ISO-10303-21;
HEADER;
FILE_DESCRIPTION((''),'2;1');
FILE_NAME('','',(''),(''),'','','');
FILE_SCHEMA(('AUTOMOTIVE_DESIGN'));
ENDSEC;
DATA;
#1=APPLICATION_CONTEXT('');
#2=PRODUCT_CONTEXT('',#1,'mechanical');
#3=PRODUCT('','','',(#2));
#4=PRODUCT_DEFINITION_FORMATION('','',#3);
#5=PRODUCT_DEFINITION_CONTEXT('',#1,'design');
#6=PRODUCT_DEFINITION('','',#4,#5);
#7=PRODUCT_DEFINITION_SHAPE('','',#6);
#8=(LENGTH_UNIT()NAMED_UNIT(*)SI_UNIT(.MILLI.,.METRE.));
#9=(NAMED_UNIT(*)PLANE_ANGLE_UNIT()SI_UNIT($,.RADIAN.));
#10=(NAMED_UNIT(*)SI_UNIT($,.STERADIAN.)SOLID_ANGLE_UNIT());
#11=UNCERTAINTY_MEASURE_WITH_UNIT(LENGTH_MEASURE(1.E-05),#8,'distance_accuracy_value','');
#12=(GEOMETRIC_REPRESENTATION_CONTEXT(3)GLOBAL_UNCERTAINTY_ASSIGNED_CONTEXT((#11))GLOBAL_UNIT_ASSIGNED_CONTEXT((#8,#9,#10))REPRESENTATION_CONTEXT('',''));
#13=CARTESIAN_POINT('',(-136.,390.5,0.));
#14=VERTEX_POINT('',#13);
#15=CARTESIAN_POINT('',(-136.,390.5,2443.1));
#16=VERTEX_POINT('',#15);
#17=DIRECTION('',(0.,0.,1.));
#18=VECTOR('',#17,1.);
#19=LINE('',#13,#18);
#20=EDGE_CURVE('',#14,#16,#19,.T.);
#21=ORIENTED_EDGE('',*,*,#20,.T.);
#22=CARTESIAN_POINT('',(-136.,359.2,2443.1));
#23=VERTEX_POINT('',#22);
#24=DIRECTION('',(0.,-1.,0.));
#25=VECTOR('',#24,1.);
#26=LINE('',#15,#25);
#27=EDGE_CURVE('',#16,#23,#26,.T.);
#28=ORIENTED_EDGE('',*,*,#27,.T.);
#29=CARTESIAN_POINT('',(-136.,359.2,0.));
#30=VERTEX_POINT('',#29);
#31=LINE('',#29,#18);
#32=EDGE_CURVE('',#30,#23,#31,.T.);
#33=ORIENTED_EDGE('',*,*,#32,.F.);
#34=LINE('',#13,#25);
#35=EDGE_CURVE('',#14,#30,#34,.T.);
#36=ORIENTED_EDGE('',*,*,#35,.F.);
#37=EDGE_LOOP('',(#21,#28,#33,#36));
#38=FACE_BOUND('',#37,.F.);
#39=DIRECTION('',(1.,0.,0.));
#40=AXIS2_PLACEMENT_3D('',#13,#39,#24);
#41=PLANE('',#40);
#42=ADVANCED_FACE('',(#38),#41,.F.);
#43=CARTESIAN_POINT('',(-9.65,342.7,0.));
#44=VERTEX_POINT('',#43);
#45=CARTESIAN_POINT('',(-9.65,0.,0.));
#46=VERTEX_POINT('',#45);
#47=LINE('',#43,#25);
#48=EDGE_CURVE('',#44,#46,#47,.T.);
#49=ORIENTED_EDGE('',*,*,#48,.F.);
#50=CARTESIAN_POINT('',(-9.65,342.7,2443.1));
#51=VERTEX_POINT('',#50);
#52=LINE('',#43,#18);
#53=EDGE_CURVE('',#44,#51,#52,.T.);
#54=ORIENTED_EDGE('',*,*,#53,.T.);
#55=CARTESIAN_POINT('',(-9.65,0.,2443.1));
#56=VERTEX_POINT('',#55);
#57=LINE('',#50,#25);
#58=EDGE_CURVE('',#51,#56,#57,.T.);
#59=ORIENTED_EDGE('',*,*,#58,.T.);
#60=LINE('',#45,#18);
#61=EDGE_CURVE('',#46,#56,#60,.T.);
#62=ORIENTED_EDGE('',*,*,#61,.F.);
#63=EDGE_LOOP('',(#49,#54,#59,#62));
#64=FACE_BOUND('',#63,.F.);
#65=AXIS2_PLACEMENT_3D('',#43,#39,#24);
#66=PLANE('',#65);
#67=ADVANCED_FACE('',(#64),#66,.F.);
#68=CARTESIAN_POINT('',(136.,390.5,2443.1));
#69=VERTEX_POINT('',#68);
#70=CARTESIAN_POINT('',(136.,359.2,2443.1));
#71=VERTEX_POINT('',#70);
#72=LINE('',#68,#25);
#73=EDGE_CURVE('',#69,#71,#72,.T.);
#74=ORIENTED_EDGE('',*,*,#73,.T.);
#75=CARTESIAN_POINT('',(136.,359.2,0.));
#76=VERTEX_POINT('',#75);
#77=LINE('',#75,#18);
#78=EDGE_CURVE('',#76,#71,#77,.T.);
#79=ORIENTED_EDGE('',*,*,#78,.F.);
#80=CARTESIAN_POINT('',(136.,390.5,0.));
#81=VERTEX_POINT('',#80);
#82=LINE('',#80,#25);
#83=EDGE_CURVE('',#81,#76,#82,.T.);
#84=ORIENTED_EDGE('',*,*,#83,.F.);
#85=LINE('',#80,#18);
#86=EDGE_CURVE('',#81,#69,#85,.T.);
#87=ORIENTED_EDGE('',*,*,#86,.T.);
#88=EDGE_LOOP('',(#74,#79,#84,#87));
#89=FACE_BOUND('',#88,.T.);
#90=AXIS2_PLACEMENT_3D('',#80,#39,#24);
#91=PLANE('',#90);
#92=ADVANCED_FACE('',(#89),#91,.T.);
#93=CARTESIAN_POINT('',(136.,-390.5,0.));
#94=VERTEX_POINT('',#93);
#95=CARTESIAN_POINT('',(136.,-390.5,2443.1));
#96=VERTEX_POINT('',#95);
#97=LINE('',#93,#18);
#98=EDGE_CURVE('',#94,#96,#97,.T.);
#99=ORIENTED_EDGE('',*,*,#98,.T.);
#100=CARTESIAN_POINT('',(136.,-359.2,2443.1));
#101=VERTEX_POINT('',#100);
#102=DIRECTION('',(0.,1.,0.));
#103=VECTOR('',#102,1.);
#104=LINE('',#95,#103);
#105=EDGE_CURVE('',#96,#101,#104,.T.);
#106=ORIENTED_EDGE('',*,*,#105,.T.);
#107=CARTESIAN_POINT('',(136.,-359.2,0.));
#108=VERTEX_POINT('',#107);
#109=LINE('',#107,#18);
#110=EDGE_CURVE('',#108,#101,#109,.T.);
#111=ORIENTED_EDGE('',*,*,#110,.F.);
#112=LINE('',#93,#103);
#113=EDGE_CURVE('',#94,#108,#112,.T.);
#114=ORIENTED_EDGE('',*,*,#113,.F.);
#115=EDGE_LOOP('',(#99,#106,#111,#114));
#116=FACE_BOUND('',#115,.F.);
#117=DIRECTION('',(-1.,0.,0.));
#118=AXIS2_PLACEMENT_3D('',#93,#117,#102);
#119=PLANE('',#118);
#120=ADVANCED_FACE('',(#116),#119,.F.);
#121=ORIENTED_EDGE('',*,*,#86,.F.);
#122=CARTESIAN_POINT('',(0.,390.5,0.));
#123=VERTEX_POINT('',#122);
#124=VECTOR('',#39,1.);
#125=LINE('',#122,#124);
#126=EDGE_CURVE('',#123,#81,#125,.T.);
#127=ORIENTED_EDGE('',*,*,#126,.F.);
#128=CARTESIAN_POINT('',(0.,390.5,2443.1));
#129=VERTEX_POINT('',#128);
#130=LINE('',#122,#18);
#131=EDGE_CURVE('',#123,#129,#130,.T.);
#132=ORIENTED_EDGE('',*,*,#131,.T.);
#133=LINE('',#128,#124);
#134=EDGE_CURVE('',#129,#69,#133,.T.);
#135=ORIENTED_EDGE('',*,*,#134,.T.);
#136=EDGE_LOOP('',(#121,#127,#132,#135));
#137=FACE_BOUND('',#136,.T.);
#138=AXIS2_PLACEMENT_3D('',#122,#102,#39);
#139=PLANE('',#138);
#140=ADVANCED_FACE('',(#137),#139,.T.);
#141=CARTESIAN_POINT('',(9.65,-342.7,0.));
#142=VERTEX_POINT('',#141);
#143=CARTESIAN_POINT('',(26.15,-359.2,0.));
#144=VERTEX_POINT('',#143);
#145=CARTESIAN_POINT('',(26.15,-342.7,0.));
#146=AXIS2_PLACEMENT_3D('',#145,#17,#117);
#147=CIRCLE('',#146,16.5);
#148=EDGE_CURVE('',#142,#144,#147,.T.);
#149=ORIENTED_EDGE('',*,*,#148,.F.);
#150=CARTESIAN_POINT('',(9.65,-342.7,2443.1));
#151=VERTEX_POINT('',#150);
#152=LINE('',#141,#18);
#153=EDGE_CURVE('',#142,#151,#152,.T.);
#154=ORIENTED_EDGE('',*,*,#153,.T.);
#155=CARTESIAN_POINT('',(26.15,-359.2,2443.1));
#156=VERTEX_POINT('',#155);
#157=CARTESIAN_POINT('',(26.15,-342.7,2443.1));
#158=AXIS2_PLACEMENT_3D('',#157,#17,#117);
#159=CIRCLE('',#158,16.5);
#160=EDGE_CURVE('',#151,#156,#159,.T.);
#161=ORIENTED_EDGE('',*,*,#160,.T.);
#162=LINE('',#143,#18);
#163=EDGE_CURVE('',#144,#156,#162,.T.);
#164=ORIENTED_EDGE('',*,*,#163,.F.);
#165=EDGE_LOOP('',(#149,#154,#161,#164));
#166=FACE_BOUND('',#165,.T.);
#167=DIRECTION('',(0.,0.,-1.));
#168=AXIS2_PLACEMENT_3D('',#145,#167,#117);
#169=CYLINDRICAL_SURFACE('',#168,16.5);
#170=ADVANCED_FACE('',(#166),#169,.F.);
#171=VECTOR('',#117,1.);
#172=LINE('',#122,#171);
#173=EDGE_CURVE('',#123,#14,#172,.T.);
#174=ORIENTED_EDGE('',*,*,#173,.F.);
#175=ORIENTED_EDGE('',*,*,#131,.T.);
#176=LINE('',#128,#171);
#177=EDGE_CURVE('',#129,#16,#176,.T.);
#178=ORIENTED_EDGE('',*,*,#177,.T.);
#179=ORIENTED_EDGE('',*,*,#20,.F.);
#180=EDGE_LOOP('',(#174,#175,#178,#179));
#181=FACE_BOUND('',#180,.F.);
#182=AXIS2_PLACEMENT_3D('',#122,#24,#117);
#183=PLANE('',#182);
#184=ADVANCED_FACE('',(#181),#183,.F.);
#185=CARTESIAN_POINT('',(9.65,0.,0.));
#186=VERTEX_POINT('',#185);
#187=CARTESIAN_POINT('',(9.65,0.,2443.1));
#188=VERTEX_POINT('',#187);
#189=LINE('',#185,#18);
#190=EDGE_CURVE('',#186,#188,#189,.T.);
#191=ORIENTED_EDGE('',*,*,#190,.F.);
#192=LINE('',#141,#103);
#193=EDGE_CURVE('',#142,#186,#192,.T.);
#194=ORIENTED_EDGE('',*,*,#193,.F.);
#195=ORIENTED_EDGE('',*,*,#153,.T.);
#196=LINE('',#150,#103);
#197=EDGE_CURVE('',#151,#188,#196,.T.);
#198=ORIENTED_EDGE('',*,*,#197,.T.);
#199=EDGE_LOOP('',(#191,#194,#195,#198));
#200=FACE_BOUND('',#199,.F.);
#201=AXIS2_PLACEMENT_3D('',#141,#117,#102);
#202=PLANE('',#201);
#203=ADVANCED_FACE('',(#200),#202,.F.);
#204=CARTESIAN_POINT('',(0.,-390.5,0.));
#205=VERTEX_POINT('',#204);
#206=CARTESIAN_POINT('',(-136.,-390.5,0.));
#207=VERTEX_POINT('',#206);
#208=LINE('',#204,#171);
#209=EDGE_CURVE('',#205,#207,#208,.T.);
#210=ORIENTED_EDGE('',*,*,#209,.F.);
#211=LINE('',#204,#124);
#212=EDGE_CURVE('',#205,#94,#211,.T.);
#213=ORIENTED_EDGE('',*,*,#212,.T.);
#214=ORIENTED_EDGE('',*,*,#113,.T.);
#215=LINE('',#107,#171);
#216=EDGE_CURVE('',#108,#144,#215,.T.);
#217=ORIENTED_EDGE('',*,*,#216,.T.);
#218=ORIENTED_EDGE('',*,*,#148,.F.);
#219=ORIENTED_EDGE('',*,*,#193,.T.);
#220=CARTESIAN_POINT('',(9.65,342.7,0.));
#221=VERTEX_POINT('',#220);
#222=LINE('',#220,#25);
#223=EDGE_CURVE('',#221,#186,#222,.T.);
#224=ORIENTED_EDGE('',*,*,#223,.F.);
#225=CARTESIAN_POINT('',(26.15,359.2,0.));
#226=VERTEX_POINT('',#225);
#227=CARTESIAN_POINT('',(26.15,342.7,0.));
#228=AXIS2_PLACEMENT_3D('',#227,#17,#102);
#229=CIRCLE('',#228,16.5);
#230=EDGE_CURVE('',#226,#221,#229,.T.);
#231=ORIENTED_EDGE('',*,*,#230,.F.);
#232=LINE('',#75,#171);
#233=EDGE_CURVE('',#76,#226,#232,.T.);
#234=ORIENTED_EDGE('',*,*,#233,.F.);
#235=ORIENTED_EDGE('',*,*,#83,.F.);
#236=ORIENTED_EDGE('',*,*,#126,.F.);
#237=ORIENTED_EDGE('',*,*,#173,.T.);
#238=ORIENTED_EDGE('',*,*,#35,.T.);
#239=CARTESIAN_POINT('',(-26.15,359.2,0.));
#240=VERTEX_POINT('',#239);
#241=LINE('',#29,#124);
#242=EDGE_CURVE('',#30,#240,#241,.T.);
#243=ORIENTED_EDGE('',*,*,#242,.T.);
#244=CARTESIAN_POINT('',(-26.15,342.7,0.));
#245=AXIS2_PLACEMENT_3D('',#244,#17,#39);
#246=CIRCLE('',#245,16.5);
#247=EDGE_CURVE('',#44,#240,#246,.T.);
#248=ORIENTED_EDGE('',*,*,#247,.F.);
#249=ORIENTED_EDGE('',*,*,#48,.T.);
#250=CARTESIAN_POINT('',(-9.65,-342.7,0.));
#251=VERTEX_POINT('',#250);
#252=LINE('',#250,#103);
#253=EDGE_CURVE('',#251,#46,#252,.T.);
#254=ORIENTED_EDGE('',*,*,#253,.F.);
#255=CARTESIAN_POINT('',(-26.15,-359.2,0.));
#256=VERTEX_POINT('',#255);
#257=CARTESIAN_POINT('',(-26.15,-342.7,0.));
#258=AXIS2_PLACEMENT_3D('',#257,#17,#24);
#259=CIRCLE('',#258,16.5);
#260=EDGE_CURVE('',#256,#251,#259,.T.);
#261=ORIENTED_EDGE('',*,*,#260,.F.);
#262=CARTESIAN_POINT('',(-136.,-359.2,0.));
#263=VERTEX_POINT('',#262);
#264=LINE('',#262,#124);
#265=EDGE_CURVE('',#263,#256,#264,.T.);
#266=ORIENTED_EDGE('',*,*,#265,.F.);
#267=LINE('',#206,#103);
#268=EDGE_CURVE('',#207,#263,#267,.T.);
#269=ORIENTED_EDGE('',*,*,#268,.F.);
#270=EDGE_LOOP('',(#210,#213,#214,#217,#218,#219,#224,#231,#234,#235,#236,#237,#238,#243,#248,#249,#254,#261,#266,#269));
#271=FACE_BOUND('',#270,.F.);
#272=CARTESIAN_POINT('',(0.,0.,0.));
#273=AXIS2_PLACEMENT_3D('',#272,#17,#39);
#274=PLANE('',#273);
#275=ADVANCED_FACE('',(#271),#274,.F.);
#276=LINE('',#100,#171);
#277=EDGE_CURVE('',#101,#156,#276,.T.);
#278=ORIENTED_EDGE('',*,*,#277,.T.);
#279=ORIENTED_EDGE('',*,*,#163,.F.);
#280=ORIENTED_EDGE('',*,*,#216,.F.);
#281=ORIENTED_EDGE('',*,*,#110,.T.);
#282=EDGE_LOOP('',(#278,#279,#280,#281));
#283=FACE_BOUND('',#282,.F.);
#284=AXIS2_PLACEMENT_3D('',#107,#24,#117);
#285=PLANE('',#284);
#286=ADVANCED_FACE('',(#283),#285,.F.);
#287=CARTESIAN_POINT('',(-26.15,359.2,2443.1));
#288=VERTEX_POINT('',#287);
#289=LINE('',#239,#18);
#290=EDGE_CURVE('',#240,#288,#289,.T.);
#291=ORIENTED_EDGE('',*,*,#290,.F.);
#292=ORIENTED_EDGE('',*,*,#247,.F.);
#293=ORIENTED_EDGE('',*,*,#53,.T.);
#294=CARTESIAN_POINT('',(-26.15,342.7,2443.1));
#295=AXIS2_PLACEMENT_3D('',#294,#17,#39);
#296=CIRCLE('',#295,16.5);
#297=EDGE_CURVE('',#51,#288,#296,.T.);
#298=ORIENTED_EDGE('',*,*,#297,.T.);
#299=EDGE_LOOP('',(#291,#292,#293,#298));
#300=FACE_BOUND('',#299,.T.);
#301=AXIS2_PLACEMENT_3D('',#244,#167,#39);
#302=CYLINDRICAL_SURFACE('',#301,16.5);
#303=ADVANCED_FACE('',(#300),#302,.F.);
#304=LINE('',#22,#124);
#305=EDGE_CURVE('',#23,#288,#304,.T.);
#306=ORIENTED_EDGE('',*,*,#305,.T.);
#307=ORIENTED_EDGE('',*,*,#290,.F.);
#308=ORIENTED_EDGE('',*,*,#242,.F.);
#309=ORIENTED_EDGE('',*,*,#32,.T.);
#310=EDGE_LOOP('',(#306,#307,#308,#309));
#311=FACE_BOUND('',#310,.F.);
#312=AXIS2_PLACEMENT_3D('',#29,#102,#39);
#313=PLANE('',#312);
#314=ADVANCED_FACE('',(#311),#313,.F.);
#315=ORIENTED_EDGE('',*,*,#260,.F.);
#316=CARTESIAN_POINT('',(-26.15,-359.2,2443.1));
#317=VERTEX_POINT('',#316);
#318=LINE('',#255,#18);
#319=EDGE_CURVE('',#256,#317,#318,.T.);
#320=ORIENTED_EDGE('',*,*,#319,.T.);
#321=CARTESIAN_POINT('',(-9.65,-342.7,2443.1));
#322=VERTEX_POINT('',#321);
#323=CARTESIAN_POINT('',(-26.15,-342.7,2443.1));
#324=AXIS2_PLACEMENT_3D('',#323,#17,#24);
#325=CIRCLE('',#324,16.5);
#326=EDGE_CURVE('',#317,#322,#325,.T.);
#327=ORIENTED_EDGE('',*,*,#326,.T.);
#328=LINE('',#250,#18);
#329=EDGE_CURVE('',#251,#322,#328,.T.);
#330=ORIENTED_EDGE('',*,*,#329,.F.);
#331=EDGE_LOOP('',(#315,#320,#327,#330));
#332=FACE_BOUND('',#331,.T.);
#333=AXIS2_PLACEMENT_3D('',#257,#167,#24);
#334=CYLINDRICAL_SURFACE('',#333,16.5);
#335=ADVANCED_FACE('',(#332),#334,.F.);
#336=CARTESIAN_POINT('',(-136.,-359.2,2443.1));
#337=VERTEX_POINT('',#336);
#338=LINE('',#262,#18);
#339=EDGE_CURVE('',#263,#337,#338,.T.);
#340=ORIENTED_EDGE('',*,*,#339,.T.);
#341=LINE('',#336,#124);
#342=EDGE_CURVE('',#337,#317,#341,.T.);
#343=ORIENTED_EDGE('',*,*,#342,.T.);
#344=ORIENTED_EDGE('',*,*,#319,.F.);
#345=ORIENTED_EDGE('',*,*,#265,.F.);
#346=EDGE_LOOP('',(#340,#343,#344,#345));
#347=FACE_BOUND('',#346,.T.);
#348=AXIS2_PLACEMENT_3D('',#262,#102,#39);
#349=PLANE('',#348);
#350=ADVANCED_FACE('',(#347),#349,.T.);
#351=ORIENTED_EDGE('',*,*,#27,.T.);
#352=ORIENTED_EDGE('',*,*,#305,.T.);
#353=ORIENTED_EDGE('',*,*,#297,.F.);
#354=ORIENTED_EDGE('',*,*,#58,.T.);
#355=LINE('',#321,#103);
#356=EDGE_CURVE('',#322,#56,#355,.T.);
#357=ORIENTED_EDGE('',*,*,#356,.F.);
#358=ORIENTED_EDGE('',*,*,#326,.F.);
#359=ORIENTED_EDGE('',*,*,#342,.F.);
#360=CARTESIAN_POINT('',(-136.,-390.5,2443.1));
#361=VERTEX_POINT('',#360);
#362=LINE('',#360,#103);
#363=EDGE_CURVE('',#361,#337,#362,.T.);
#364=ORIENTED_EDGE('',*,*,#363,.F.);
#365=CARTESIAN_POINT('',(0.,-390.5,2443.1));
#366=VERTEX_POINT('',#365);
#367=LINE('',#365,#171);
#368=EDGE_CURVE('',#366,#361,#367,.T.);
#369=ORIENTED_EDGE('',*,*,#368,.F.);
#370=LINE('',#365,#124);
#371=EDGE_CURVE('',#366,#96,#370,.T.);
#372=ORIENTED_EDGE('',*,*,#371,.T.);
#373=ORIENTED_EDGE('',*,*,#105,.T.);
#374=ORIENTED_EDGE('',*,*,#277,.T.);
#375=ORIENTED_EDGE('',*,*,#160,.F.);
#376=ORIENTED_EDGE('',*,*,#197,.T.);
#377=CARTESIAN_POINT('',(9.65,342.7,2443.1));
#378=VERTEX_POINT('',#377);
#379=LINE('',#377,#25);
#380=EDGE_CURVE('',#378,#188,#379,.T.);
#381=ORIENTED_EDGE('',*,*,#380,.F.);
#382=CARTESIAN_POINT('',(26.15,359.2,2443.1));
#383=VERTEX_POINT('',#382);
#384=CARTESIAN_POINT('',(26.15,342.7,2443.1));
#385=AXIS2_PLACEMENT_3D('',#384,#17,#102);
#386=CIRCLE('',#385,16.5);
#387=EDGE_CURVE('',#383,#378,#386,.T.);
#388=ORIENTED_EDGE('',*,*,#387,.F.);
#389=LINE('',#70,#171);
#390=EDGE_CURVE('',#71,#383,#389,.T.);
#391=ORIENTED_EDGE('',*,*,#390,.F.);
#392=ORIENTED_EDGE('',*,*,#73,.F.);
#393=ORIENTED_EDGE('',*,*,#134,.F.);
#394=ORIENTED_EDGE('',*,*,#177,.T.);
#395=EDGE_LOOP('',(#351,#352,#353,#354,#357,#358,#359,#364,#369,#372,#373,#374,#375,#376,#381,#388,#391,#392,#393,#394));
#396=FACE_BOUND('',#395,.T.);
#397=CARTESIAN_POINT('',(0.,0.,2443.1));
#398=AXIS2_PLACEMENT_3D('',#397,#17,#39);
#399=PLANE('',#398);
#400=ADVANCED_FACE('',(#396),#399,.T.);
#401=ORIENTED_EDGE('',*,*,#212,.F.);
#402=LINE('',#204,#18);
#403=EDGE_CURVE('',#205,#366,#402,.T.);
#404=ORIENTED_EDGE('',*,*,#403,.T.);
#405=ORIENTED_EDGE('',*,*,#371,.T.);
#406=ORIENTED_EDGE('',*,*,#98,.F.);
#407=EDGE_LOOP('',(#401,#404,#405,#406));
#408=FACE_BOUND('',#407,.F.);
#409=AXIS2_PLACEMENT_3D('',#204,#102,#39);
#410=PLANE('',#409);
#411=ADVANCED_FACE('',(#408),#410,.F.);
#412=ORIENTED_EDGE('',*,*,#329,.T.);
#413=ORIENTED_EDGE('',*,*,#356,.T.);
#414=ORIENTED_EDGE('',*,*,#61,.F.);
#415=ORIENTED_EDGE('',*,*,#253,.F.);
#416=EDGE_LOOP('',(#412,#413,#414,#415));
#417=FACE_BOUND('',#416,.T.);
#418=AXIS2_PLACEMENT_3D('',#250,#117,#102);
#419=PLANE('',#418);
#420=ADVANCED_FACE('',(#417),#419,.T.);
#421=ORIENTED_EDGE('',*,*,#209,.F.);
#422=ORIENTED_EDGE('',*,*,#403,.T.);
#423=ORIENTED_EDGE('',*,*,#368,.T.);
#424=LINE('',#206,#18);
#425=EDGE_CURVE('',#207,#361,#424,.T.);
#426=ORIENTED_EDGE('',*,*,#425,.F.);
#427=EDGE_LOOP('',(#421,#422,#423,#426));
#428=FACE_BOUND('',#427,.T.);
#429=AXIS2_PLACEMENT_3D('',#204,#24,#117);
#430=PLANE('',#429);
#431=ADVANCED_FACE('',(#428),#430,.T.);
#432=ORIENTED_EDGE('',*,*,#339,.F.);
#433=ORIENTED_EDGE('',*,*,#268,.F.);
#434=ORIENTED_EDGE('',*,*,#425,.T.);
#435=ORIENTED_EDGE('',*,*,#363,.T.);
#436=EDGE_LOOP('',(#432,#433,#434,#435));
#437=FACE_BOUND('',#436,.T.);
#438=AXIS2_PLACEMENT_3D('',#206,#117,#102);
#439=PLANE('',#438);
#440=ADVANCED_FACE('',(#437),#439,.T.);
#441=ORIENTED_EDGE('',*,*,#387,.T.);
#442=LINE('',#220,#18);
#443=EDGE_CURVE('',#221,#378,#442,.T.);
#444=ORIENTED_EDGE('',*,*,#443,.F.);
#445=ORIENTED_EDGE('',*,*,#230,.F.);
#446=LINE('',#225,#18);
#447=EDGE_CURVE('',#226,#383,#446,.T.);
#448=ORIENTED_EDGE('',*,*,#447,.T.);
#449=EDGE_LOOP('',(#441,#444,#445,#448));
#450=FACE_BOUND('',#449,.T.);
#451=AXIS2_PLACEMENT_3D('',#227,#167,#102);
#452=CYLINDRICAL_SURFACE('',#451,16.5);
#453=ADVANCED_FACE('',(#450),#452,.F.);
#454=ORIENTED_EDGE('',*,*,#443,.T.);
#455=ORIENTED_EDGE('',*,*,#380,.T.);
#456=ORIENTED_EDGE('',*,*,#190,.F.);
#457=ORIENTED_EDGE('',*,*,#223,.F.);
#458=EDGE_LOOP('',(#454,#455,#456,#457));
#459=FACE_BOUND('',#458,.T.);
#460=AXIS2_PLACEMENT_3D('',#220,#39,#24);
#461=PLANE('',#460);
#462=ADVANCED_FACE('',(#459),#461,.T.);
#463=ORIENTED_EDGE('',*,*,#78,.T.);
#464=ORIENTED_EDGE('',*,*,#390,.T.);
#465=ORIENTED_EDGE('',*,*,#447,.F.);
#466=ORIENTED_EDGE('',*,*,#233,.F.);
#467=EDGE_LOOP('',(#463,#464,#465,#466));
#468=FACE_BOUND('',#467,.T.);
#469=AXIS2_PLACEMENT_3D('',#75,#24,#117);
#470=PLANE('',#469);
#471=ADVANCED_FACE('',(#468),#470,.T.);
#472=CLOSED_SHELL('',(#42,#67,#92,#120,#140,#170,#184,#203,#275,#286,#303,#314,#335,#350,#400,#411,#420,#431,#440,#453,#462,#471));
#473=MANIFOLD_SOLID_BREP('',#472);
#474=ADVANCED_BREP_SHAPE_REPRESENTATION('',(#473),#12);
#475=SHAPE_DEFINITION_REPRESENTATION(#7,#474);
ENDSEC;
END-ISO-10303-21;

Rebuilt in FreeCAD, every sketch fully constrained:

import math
import FreeCAD as App
import Part
import Sketcher

V = App.Vector
Q = App.Units.Quantity

doc = App.newDocument("Part")
body = doc.addObject("PartDesign::Body", "Body")

# Sketch on XY plane
sketch1 = body.newObject("Sketcher::SketchObject", "Sketch")
sketch1.AttachmentSupport = (doc.getObject("XY_Plane"), [""])
sketch1.MapMode = "FlatFace"
sketch1.addGeometry(Part.LineSegment(V(-136, -359, 0), V(-136, -390, 0)), False)
sketch1.addGeometry(Part.LineSegment(V(-136, -390, 0), V(136, -390, 0)), False)
sketch1.addGeometry(Part.LineSegment(V(136, -390, 0), V(136, -359, 0)), False)
sketch1.addGeometry(Part.LineSegment(V(136, -359, 0), V(26, -359, 0)), False)
sketch1.addGeometry(Part.ArcOfCircle(Part.Circle(V(26, -343, 0), V(0, 0, 1), 16), math.radians(180), math.radians(270)), False)
sketch1.addGeometry(Part.LineSegment(V(10, -343, 0), V(10, 343, 0)), False)
sketch1.addGeometry(Part.ArcOfCircle(Part.Circle(V(26, 343, 0), V(0, 0, 1), 16), math.radians(90), math.radians(180)), False)
sketch1.addGeometry(Part.LineSegment(V(26, 359, 0), V(136, 359, 0)), False)
sketch1.addGeometry(Part.LineSegment(V(136, 359, 0), V(136, 390, 0)), False)
sketch1.addGeometry(Part.LineSegment(V(136, 390, 0), V(-136, 390, 0)), False)
sketch1.addGeometry(Part.LineSegment(V(-136, 390, 0), V(-136, 359, 0)), False)
sketch1.addGeometry(Part.LineSegment(V(-136, 359, 0), V(-26, 359, 0)), False)
sketch1.addGeometry(Part.ArcOfCircle(Part.Circle(V(-26, 343, 0), V(0, 0, 1), 16), math.radians(0), math.radians(90)), False)
sketch1.addGeometry(Part.LineSegment(V(-10, 343, 0), V(-10, -343, 0)), False)
sketch1.addGeometry(Part.ArcOfCircle(Part.Circle(V(-26, -343, 0), V(0, 0, 1), 16), math.radians(-90), math.radians(0)), False)
sketch1.addGeometry(Part.LineSegment(V(-26, -359, 0), V(-136, -359, 0)), False)
sketch1.addConstraint(Sketcher.Constraint("Coincident", 0, 2, 1, 1))
sketch1.addConstraint(Sketcher.Constraint("Coincident", 1, 2, 2, 1))
sketch1.addConstraint(Sketcher.Constraint("Coincident", 2, 2, 3, 1))
sketch1.addConstraint(Sketcher.Constraint("Tangent", 3, 2, 4, 2))
sketch1.addConstraint(Sketcher.Constraint("Tangent", 4, 1, 5, 1))
sketch1.addConstraint(Sketcher.Constraint("Tangent", 5, 2, 6, 2))
sketch1.addConstraint(Sketcher.Constraint("Tangent", 6, 1, 7, 1))
sketch1.addConstraint(Sketcher.Constraint("Coincident", 7, 2, 8, 1))
sketch1.addConstraint(Sketcher.Constraint("Coincident", 8, 2, 9, 1))
sketch1.addConstraint(Sketcher.Constraint("Coincident", 9, 2, 10, 1))
sketch1.addConstraint(Sketcher.Constraint("Coincident", 10, 2, 11, 1))
sketch1.addConstraint(Sketcher.Constraint("Tangent", 11, 2, 12, 2))
sketch1.addConstraint(Sketcher.Constraint("Tangent", 12, 1, 13, 1))
sketch1.addConstraint(Sketcher.Constraint("Tangent", 13, 2, 14, 2))
sketch1.addConstraint(Sketcher.Constraint("Tangent", 14, 1, 15, 1))
sketch1.addConstraint(Sketcher.Constraint("Coincident", 15, 2, 0, 1))
sketch1.addConstraint(Sketcher.Constraint("Vertical", 0))
sketch1.addConstraint(Sketcher.Constraint("Horizontal", 1))
sketch1.addConstraint(Sketcher.Constraint("Vertical", 2))
sketch1.addConstraint(Sketcher.Constraint("Horizontal", 3))
sketch1.addConstraint(Sketcher.Constraint("Vertical", 5))
sketch1.addConstraint(Sketcher.Constraint("Horizontal", 7))
sketch1.addConstraint(Sketcher.Constraint("Vertical", 8))
sketch1.addConstraint(Sketcher.Constraint("Horizontal", 9))
sketch1.addConstraint(Sketcher.Constraint("Vertical", 10))
sketch1.addConstraint(Sketcher.Constraint("Horizontal", 11))
sketch1.addConstraint(Sketcher.Constraint("Vertical", 13))
sketch1.addConstraint(Sketcher.Constraint("Horizontal", 15))
sketch1.addConstraint(Sketcher.Constraint("Equal", 4, 6))
sketch1.addConstraint(Sketcher.Constraint("Equal", 6, 12))
sketch1.addConstraint(Sketcher.Constraint("Equal", 12, 14))
sketch1.addConstraint(Sketcher.Constraint("Symmetric", 4, 3, 12, 3, -1, 1))
sketch1.addConstraint(Sketcher.Constraint("Symmetric", 0, 2, 8, 2, -1, 1))
sketch1.addConstraint(Sketcher.Constraint("Symmetric", 7, 2, 10, 2, -2))
sketch1.addConstraint(Sketcher.Constraint("Symmetric", 2, 2, 15, 2, -2))
sketch1.addConstraint(Sketcher.Constraint("Radius", 4, Q("16.5 mm")))
sketch1.addConstraint(Sketcher.Constraint("DistanceY", 0, 2, 0, 1, Q("31.3 mm")))
sketch1.addConstraint(Sketcher.Constraint("DistanceX", 0, 2, -1, 1, Q("136 mm")))
sketch1.addConstraint(Sketcher.Constraint("DistanceY", 0, 2, -1, 1, Q("390.5 mm")))
sketch1.addConstraint(Sketcher.Constraint("DistanceX", -1, 1, 4, 1, Q("9.65 mm")))
pad1 = body.newObject("PartDesign::Pad", "Pad")
pad1.Profile = sketch1
pad1.Length = 2443.1

doc.recompute()
